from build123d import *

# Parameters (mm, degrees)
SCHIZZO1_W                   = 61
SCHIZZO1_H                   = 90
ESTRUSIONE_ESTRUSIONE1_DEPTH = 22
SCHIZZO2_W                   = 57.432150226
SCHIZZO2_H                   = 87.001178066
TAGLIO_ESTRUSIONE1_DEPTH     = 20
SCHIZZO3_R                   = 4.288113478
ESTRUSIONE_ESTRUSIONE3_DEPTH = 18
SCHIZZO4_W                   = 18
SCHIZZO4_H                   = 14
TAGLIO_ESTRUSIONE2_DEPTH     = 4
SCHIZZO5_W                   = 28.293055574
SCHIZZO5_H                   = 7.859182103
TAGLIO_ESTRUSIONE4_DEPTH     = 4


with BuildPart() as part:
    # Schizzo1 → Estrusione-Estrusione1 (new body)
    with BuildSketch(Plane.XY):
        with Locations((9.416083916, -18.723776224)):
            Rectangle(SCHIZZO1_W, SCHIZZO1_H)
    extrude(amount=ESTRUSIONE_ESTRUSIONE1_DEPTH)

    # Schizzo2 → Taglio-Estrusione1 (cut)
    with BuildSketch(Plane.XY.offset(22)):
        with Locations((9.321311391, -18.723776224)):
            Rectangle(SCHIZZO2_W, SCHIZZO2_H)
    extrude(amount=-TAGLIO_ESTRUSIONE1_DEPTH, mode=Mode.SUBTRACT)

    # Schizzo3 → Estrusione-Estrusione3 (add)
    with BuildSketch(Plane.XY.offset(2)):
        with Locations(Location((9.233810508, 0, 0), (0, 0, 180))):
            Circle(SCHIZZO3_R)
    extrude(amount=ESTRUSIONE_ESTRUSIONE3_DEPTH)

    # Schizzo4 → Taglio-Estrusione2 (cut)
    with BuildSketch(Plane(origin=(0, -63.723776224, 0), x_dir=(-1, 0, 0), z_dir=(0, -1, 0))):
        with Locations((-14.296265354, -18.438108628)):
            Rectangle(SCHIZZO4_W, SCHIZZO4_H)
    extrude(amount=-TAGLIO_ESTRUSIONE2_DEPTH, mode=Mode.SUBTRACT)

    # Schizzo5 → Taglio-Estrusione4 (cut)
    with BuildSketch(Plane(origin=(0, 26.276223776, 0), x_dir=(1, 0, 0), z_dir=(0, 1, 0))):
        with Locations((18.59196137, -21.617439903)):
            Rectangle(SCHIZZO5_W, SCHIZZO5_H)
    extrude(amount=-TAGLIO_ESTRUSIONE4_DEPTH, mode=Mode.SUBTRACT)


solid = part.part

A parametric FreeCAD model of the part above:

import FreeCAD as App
import Part
import Sketcher
from FreeCAD import Vector


def add_polygon(sketch, points):
    """Adds a closed chain of lines whose ends are joined by coincident constraints."""
    first, n = sketch.GeometryCount, len(points)
    for a, b in zip(points, points[1:] + points[:1]):
        sketch.addGeometry(Part.LineSegment(App.Vector(*a, 0), App.Vector(*b, 0)), False)
    for i in range(n):
        sketch.addConstraint(Sketcher.Constraint("Coincident", first + i, 2, first + (i + 1) % n, 1))

doc = App.newDocument("Part")
body = doc.addObject("PartDesign::Body", "Body")

# Sketch on XY plane
sketch1 = body.newObject("Sketcher::SketchObject", "Sketch")
sketch1.AttachmentSupport = (doc.getObject("XY_Plane"), [""])
sketch1.MapMode = "FlatFace"
add_polygon(sketch1, [(-21.083916, 26.276224), (-21.083916, -63.723776), (39.916084, -63.723776), (39.916084, 26.276224)])  # lines 0-3
sketch1.addConstraint([
    Sketcher.Constraint("Vertical", 0),
    Sketcher.Constraint("Horizontal", 1),
    Sketcher.Constraint("Vertical", 2),
    Sketcher.Constraint("Horizontal", 3),
    Sketcher.Constraint("DistanceX", 1, 1, 1, 2, 61.0),
    Sketcher.Constraint("DistanceY", 0, 2, 0, 1, 90.0),
    Sketcher.Constraint("DistanceX", 0, 2, -1, 1, 21.083916),
    Sketcher.Constraint("DistanceY", 0, 2, -1, 1, 63.723776),
])
pad1 = body.newObject("PartDesign::Pad", "Pad")
pad1.Profile = sketch1
pad1.Length = 22

# Sketch on XY plane
sketch2 = body.newObject("Sketcher::SketchObject", "Sketch001")
sketch2.AttachmentSupport = (doc.getObject("XY_Plane"), [""])
sketch2.MapMode = "FlatFace"
sketch2.AttachmentOffset = App.Placement(Vector(0, 0, 22), App.Rotation())
add_polygon(sketch2, [(-19.394764, 24.776813), (-19.394764, -62.224365), (38.037387, -62.224365), (38.037387, 24.776813)])  # lines 0-3
sketch2.addConstraint([
    Sketcher.Constraint("Vertical", 0),
    Sketcher.Constraint("Horizontal", 1),
    Sketcher.Constraint("Vertical", 2),
    Sketcher.Constraint("Horizontal", 3),
    Sketcher.Constraint("DistanceX", 1, 1, 1, 2, 57.43215),
    Sketcher.Constraint("DistanceY", 0, 2, 0, 1, 87.001178),
    Sketcher.Constraint("DistanceX", 0, 2, -1, 1, 19.394764),
    Sketcher.Constraint("DistanceY", 0, 2, -1, 1, 62.224365),
])
pocket1 = body.newObject("PartDesign::Pocket", "Pocket")
pocket1.Profile = sketch2
pocket1.Length = 20

# Sketch on XY plane
sketch3 = body.newObject("Sketcher::SketchObject", "Sketch002")
sketch3.AttachmentSupport = (doc.getObject("XY_Plane"), [""])
sketch3.MapMode = "FlatFace"
sketch3.AttachmentOffset = App.Placement(Vector(0, 0, 2), App.Rotation())
sketch3.addGeometry(Part.Circle(Vector(9.233811, 0, 0), Vector(0, 0, 1), 4.288113), False)
sketch3.addConstraint([
    Sketcher.Constraint("PointOnObject", 0, 3, -1),
    Sketcher.Constraint("Diameter", 0, 8.576227),
    Sketcher.Constraint("DistanceX", -1, 1, 0, 3, 9.233811),
])
pad2 = body.newObject("PartDesign::Pad", "Pad001")
pad2.Profile = sketch3
pad2.Length = 18

# Sketch on XZ plane
sketch4 = body.newObject("Sketcher::SketchObject", "Sketch003")
sketch4.AttachmentSupport = (doc.getObject("XZ_Plane"), [""])
sketch4.MapMode = "FlatFace"
sketch4.AttachmentOffset = App.Placement(Vector(0, 0, 63.723776), App.Rotation())
add_polygon(sketch4, [(23.296265, 11.438109), (23.296265, 25.438109), (5.296265, 25.438109), (5.296265, 11.438109)])  # lines 0-3
sketch4.addConstraint([
    Sketcher.Constraint("Vertical", 0),
    Sketcher.Constraint("Horizontal", 1),
    Sketcher.Constraint("Vertical", 2),
    Sketcher.Constraint("Horizontal", 3),
    Sketcher.Constraint("DistanceX", 1, 2, 1, 1, 18.0),
    Sketcher.Constraint("DistanceY", 0, 1, 0, 2, 14.0),
    Sketcher.Constraint("DistanceY", -1, 1, 0, 2, 25.438109),
    Sketcher.Constraint("DistanceX", -1, 1, 0, 2, 23.296265),
])
pocket2 = body.newObject("PartDesign::Pocket", "Pocket001")
pocket2.Profile = sketch4
pocket2.Length = 4

# Sketch on XZ plane
sketch5 = body.newObject("Sketcher::SketchObject", "Sketch004")
sketch5.AttachmentSupport = (doc.getObject("XZ_Plane"), [""])
sketch5.MapMode = "FlatFace"
sketch5.AttachmentOffset = App.Placement(Vector(0, 0, -26.276224), App.Rotation())
add_polygon(sketch5, [(4.445434, 17.687849), (4.445434, 25.547031), (32.738489, 25.547031), (32.738489, 17.687849)])  # lines 0-3
sketch5.addConstraint([
    Sketcher.Constraint("Vertical", 0),
    Sketcher.Constraint("Horizontal", 1),
    Sketcher.Constraint("Vertical", 2),
    Sketcher.Constraint("Horizontal", 3),
    Sketcher.Constraint("DistanceX", 1, 1, 1, 2, 28.293056),
    Sketcher.Constraint("DistanceY", 0, 1, 0, 2, 7.859182),
    Sketcher.Constraint("DistanceY", -1, 1, 0, 2, 25.547031),
    Sketcher.Constraint("DistanceX", -1, 1, 1, 2, 32.738489),
])
pocket3 = body.newObject("PartDesign::Pocket", "Pocket002")
pocket3.Profile = sketch5
pocket3.Length = 4
pocket3.Reversed = True

doc.recompute()
